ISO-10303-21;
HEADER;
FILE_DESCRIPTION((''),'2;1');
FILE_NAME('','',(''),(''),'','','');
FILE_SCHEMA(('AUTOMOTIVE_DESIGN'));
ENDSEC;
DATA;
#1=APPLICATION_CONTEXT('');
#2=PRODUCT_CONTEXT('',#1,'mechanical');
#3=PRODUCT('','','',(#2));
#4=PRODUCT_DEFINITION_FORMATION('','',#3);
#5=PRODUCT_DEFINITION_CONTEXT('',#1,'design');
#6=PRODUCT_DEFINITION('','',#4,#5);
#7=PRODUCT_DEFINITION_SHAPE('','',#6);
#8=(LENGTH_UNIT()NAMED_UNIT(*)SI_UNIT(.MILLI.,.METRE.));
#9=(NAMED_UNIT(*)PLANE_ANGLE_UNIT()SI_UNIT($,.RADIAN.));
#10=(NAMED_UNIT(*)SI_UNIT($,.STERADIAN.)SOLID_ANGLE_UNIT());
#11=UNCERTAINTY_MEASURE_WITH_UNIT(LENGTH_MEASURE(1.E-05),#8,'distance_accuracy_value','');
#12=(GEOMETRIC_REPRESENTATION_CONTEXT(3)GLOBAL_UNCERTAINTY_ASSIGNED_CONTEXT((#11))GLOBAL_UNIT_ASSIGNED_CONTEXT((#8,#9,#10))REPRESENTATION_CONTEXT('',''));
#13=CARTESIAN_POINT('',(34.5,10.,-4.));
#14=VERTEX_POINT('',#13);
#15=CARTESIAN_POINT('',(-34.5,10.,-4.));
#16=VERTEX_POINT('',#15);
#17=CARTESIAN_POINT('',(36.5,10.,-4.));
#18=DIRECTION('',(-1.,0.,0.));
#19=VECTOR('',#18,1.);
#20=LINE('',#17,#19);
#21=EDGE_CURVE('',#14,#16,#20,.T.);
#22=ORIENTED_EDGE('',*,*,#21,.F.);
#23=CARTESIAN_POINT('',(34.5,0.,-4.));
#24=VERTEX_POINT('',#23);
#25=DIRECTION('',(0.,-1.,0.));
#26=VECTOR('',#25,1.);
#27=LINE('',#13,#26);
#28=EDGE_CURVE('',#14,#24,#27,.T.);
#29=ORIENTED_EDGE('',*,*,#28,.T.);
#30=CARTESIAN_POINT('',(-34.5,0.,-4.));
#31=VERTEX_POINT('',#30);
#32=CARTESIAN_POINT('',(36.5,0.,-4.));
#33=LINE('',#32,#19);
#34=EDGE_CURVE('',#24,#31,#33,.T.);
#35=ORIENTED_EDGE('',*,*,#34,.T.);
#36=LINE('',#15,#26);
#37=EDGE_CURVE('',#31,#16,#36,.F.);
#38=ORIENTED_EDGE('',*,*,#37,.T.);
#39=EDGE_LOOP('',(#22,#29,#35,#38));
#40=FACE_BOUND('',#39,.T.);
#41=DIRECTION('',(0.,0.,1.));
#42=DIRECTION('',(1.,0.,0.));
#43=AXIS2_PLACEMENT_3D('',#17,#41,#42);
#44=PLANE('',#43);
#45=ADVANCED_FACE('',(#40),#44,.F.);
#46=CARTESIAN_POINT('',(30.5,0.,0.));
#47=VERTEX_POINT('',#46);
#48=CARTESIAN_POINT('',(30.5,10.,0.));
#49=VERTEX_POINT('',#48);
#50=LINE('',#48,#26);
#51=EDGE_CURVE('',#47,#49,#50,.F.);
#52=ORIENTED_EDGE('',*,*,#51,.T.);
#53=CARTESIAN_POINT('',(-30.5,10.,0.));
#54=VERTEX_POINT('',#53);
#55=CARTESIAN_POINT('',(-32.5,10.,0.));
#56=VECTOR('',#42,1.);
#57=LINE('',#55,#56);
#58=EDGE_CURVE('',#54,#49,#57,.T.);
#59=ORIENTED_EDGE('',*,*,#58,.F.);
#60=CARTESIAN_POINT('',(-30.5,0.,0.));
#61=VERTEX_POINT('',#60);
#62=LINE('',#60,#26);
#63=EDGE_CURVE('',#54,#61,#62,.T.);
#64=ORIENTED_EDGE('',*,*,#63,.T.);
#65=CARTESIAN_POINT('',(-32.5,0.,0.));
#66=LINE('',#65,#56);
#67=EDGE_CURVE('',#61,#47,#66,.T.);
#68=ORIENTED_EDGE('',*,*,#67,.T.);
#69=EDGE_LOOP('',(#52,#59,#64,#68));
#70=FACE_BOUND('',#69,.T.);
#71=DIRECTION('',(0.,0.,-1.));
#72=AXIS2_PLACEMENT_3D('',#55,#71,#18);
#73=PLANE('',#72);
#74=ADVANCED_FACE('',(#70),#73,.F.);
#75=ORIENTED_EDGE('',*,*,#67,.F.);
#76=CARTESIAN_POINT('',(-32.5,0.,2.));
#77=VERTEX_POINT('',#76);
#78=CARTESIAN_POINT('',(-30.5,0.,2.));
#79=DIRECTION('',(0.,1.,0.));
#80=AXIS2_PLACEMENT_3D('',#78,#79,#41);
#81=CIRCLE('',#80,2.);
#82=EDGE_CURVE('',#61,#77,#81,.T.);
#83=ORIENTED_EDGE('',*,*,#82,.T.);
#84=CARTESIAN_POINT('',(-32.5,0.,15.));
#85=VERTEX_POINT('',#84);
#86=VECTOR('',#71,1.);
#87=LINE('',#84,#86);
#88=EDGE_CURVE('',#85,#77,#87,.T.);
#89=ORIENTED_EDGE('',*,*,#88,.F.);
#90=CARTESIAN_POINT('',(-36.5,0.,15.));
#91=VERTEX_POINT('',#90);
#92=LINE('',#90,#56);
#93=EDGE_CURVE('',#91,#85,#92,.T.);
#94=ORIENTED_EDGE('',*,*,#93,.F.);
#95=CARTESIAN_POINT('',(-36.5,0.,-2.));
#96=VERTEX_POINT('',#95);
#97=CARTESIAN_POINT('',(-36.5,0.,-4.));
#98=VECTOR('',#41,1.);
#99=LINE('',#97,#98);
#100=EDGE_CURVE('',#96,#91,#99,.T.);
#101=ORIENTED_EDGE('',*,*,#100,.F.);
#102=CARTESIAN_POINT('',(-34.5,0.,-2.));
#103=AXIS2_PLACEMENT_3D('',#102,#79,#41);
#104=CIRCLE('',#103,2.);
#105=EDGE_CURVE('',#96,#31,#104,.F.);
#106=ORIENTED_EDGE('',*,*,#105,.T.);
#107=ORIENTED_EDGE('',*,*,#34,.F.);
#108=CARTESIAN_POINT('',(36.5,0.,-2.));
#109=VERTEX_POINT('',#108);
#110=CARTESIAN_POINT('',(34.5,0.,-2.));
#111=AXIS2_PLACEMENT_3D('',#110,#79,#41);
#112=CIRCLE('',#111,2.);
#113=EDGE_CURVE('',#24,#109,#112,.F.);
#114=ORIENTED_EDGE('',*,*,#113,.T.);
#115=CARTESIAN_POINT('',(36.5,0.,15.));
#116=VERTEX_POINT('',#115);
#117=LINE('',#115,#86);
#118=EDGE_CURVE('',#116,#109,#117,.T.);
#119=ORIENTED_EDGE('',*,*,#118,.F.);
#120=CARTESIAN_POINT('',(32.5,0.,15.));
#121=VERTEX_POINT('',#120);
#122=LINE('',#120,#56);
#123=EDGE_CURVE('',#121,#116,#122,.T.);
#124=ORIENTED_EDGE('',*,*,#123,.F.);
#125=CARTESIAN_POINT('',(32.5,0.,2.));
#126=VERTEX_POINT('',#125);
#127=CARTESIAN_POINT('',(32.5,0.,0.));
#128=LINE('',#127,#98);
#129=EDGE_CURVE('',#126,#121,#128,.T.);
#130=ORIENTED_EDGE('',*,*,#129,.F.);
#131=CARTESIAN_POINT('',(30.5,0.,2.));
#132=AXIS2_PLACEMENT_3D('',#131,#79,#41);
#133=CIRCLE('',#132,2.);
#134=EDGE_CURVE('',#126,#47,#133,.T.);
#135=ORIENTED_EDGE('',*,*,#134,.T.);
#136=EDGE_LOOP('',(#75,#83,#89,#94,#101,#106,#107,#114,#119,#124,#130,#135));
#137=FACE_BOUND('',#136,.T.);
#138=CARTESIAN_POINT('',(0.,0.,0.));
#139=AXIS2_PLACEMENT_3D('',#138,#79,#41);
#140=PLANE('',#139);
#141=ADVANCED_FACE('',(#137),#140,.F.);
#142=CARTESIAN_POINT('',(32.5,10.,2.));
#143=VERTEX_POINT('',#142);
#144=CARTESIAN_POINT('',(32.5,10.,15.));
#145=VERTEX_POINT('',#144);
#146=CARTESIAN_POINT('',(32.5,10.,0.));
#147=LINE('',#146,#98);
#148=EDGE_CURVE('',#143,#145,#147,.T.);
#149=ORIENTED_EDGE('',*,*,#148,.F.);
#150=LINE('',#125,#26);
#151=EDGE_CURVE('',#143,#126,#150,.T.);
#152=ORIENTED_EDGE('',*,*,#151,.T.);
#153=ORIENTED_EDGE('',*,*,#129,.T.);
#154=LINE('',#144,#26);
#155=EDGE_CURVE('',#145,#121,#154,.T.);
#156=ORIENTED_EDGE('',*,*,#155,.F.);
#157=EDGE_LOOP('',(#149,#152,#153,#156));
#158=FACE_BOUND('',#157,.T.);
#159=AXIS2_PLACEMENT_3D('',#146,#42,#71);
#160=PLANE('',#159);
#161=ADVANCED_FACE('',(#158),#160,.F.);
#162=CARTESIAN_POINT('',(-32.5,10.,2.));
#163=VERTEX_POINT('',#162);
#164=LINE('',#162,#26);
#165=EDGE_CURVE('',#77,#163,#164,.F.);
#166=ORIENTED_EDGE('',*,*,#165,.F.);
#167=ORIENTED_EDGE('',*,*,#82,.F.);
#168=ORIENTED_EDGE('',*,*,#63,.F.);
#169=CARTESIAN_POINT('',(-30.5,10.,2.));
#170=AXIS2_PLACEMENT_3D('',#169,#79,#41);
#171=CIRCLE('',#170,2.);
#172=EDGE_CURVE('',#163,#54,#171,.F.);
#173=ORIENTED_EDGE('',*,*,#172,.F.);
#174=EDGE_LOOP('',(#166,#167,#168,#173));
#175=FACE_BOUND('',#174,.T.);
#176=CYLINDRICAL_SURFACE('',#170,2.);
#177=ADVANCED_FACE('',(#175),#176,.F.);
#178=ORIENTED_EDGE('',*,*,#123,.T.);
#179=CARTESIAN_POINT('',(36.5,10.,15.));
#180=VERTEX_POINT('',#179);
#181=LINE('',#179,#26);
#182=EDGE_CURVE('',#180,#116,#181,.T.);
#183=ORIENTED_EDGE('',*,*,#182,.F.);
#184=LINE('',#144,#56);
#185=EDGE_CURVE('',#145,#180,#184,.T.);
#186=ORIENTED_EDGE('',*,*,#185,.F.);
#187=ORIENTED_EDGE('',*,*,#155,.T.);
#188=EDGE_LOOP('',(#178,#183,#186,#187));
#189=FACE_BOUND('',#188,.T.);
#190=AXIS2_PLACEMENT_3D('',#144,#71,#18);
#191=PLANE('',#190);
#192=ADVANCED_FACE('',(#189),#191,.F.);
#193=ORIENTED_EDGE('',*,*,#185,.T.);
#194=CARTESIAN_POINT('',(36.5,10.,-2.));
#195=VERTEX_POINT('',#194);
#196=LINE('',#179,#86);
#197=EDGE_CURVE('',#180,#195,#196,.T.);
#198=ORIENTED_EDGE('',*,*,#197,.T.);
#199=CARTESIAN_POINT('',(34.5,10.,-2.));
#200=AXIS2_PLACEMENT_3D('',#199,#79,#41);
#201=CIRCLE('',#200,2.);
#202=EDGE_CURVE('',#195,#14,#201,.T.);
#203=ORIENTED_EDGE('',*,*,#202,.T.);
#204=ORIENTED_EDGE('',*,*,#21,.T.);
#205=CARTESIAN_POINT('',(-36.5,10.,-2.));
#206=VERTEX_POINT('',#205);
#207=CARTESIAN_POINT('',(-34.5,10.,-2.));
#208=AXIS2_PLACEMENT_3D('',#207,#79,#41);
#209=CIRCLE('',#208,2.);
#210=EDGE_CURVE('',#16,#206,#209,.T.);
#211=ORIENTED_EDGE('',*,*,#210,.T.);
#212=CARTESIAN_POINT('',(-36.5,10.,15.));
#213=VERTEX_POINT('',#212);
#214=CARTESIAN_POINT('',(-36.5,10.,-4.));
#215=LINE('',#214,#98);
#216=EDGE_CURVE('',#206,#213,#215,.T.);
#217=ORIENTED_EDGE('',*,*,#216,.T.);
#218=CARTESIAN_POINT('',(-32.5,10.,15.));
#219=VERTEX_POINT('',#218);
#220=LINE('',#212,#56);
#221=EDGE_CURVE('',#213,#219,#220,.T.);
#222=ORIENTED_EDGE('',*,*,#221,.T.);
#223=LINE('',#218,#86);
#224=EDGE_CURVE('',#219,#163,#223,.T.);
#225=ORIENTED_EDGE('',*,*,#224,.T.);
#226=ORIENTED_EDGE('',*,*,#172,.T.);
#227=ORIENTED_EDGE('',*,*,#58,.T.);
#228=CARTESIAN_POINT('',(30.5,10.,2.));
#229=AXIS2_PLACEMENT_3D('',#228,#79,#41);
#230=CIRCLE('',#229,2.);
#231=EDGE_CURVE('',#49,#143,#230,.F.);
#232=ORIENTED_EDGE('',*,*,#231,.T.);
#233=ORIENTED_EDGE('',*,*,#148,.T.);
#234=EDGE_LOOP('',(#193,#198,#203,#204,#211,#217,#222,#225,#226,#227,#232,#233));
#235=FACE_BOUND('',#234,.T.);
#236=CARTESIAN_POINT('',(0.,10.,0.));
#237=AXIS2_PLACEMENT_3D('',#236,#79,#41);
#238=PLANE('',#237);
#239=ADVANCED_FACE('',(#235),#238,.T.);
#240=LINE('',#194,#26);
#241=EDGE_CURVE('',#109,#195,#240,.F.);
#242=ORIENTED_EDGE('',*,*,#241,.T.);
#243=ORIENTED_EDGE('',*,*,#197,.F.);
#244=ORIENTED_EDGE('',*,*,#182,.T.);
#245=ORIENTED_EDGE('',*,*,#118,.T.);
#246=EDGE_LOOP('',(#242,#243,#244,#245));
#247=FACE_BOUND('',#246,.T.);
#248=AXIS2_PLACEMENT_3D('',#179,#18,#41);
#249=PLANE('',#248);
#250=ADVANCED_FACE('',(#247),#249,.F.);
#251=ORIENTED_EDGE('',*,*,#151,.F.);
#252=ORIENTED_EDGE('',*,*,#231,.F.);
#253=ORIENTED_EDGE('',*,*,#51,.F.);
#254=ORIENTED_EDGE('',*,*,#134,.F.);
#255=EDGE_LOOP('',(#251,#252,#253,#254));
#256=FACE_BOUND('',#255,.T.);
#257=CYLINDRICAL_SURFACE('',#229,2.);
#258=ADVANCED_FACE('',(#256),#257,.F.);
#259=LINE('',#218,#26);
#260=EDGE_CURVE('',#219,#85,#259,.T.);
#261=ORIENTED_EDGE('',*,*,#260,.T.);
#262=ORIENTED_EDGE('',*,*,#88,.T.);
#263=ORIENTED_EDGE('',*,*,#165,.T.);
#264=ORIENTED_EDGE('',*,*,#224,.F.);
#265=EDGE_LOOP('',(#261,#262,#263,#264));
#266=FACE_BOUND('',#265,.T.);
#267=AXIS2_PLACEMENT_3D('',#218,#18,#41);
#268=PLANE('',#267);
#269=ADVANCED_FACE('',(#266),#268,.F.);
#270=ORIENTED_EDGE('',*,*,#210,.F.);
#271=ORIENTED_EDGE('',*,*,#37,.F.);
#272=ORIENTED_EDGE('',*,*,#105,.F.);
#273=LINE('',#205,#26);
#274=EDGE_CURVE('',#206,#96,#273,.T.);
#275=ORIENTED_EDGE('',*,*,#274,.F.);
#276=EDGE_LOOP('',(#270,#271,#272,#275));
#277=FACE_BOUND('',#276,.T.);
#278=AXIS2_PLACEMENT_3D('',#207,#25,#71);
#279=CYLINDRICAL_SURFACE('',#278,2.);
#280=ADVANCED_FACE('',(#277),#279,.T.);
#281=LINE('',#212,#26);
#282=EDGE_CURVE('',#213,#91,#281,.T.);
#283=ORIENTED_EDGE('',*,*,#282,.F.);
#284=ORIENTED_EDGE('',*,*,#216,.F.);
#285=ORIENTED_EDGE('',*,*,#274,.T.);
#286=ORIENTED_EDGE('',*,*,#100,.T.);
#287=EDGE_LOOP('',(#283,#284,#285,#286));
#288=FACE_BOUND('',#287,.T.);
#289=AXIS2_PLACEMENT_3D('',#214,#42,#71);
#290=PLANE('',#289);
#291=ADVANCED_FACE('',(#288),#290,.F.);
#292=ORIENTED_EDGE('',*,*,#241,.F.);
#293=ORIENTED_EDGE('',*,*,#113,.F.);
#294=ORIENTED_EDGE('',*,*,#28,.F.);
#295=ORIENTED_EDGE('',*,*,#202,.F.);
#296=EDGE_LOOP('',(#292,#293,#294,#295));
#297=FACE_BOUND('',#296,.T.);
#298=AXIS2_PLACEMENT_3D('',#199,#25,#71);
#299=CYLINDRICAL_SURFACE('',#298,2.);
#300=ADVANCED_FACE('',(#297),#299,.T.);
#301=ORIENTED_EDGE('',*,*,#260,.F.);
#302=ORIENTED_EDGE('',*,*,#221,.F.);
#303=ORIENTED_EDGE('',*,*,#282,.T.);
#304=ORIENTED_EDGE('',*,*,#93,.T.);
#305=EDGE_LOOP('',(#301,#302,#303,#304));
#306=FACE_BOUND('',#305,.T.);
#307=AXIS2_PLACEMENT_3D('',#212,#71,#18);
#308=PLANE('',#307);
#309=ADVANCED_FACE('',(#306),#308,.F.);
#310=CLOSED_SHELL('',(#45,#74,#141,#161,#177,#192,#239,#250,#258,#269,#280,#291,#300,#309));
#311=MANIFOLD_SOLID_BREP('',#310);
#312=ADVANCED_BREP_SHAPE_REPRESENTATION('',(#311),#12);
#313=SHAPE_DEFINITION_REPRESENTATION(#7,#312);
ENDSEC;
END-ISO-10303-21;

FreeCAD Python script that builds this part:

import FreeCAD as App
import Part
import Sketcher
Q = App.Units.Quantity


def edges_at(feature, points):
    """Names of the edges that pass closest to the given points."""
    edges = feature.Shape.Edges
    near = lambda p: min(range(len(edges)), key=lambda i: edges[i].distToShape(Part.Vertex(*p))[0])
    return sorted({f"Edge{near(p) + 1}" for p in points})


def add_polygon(sketch, points):
    """Adds a closed chain of lines whose ends are joined by coincident constraints."""
    first, n = sketch.GeometryCount, len(points)
    for a, b in zip(points, points[1:] + points[:1]):
        sketch.addGeometry(Part.LineSegment(App.Vector(*a, 0), App.Vector(*b, 0)), False)
    for i in range(n):
        sketch.addConstraint(Sketcher.Constraint("Coincident", first + i, 2, first + (i + 1) % n, 1))

doc = App.newDocument("Part")
body = doc.addObject("PartDesign::Body", "Body")

# Sketch on XZ plane
sketch1 = body.newObject("Sketcher::SketchObject", "Sketch")
sketch1.AttachmentSupport = (doc.getObject("XZ_Plane"), [""])
sketch1.MapMode = "FlatFace"
add_polygon(sketch1, [(-32.5, 0), (32.5, 0), (32.5, 15), (36.5, 15), (36.5, -4), (-36.5, -4), (-36.5, 15), (-32.5, 15)])  # lines 0-7
sketch1.addConstraint(Sketcher.Constraint("Horizontal", 0))
sketch1.addConstraint(Sketcher.Constraint("Vertical", 1))
sketch1.addConstraint(Sketcher.Constraint("Horizontal", 2))
sketch1.addConstraint(Sketcher.Constraint("Vertical", 3))
sketch1.addConstraint(Sketcher.Constraint("Horizontal", 4))
sketch1.addConstraint(Sketcher.Constraint("Vertical", 5))
sketch1.addConstraint(Sketcher.Constraint("Horizontal", 6))
sketch1.addConstraint(Sketcher.Constraint("Vertical", 7))
sketch1.addConstraint(Sketcher.Constraint("Symmetric", 0, 2, 7, 2, -1, 1))
sketch1.addConstraint(Sketcher.Constraint("Symmetric", 2, 2, 5, 2, -2))
sketch1.addConstraint(Sketcher.Constraint("DistanceX", 0, 1, 0, 2, Q("65 mm")))
sketch1.addConstraint(Sketcher.Constraint("DistanceX", 2, 1, 2, 2, Q("4 mm")))
sketch1.addConstraint(Sketcher.Constraint("DistanceY", 1, 1, 1, 2, Q("15 mm")))
sketch1.addConstraint(Sketcher.Constraint("DistanceY", 3, 2, 3, 1, Q("19 mm")))
pad1 = body.newObject("PartDesign::Pad", "Pad")
pad1.Profile = sketch1
pad1.Length = 10
pad1.Reversed = True
doc.recompute()

fillet = body.newObject("PartDesign::Fillet", "Fillet")
fillet.Base = (pad1, edges_at(pad1, [
    (-36.5, 5, -4),
    (36.5, 5, -4),
    (32.5, 5, 0),
    (-32.5, 5, 0),
]))
fillet.Radius = 2

doc.recompute()
